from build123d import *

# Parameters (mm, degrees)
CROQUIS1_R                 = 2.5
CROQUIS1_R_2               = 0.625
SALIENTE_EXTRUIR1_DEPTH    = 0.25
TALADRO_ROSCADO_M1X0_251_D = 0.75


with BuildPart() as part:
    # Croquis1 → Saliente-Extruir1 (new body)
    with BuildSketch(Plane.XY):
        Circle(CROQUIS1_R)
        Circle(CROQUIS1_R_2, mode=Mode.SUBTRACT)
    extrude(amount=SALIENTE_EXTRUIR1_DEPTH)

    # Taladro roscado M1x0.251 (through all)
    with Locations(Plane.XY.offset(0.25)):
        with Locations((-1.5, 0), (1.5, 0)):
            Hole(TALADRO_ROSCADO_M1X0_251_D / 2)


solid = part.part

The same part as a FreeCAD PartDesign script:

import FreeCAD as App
import Part
import Sketcher

V = App.Vector

doc = App.newDocument("Part")
body = doc.addObject("PartDesign::Body", "Body")

sketch1 = body.newObject("Sketcher::SketchObject", "Sketch")
sketch1.AttachmentSupport = (doc.getObject("XY_Plane"), [""])
sketch1.MapMode = "FlatFace"
sketch1.addGeometry(Part.Circle(V(0, 0, 0), V(0, 0, 1), 2.5), False)
sketch1.addGeometry(Part.Circle(V(0, 0, 0), V(0, 0, 1), 0.6), False)
sketch1.addConstraint(Sketcher.Constraint("Coincident", 0, 3, -1, 1))
sketch1.addConstraint(Sketcher.Constraint("Coincident", 1, 3, -1, 1))
sketch1.addConstraint(Sketcher.Constraint("Diameter", 0, 5.0))
sketch1.addConstraint(Sketcher.Constraint("Diameter", 1, 1.25))
pad1 = body.newObject("PartDesign::Pad", "Pad")
pad1.Profile = sketch1
pad1.Length = 0.25

sketch2 = body.newObject("Sketcher::SketchObject", "Sketch001")
sketch2.AttachmentSupport = (doc.getObject("XY_Plane"), [""])
sketch2.MapMode = "FlatFace"
sketch2.AttachmentOffset = App.Placement(V(0, 0, 0.25), App.Rotation())
sketch2.addGeometry(Part.Circle(V(-1.5, 0, 0), V(0, 0, 1), 0.38), False)
sketch2.addGeometry(Part.Circle(V(1.5, 0, 0), V(0, 0, 1), 0.38), False)
sketch2.addConstraint(Sketcher.Constraint("Equal", 0, 1))
sketch2.addConstraint(Sketcher.Constraint("Symmetric", 0, 3, 1, 3, -1, 1))
sketch2.addConstraint(Sketcher.Constraint("PointOnObject", 0, 3, -1))
sketch2.addConstraint(Sketcher.Constraint("Diameter", 0, 0.75))
sketch2.addConstraint(Sketcher.Constraint("DistanceX", 0, 3, 1, 3, 3.0))
doc.recompute()
hole = body.newObject("PartDesign::Hole", "Hole")
hole.Profile = sketch2
hole.ThreadType = "None"
hole.Diameter = 0.75
hole.DepthType = "ThroughAll"

doc.recompute()
